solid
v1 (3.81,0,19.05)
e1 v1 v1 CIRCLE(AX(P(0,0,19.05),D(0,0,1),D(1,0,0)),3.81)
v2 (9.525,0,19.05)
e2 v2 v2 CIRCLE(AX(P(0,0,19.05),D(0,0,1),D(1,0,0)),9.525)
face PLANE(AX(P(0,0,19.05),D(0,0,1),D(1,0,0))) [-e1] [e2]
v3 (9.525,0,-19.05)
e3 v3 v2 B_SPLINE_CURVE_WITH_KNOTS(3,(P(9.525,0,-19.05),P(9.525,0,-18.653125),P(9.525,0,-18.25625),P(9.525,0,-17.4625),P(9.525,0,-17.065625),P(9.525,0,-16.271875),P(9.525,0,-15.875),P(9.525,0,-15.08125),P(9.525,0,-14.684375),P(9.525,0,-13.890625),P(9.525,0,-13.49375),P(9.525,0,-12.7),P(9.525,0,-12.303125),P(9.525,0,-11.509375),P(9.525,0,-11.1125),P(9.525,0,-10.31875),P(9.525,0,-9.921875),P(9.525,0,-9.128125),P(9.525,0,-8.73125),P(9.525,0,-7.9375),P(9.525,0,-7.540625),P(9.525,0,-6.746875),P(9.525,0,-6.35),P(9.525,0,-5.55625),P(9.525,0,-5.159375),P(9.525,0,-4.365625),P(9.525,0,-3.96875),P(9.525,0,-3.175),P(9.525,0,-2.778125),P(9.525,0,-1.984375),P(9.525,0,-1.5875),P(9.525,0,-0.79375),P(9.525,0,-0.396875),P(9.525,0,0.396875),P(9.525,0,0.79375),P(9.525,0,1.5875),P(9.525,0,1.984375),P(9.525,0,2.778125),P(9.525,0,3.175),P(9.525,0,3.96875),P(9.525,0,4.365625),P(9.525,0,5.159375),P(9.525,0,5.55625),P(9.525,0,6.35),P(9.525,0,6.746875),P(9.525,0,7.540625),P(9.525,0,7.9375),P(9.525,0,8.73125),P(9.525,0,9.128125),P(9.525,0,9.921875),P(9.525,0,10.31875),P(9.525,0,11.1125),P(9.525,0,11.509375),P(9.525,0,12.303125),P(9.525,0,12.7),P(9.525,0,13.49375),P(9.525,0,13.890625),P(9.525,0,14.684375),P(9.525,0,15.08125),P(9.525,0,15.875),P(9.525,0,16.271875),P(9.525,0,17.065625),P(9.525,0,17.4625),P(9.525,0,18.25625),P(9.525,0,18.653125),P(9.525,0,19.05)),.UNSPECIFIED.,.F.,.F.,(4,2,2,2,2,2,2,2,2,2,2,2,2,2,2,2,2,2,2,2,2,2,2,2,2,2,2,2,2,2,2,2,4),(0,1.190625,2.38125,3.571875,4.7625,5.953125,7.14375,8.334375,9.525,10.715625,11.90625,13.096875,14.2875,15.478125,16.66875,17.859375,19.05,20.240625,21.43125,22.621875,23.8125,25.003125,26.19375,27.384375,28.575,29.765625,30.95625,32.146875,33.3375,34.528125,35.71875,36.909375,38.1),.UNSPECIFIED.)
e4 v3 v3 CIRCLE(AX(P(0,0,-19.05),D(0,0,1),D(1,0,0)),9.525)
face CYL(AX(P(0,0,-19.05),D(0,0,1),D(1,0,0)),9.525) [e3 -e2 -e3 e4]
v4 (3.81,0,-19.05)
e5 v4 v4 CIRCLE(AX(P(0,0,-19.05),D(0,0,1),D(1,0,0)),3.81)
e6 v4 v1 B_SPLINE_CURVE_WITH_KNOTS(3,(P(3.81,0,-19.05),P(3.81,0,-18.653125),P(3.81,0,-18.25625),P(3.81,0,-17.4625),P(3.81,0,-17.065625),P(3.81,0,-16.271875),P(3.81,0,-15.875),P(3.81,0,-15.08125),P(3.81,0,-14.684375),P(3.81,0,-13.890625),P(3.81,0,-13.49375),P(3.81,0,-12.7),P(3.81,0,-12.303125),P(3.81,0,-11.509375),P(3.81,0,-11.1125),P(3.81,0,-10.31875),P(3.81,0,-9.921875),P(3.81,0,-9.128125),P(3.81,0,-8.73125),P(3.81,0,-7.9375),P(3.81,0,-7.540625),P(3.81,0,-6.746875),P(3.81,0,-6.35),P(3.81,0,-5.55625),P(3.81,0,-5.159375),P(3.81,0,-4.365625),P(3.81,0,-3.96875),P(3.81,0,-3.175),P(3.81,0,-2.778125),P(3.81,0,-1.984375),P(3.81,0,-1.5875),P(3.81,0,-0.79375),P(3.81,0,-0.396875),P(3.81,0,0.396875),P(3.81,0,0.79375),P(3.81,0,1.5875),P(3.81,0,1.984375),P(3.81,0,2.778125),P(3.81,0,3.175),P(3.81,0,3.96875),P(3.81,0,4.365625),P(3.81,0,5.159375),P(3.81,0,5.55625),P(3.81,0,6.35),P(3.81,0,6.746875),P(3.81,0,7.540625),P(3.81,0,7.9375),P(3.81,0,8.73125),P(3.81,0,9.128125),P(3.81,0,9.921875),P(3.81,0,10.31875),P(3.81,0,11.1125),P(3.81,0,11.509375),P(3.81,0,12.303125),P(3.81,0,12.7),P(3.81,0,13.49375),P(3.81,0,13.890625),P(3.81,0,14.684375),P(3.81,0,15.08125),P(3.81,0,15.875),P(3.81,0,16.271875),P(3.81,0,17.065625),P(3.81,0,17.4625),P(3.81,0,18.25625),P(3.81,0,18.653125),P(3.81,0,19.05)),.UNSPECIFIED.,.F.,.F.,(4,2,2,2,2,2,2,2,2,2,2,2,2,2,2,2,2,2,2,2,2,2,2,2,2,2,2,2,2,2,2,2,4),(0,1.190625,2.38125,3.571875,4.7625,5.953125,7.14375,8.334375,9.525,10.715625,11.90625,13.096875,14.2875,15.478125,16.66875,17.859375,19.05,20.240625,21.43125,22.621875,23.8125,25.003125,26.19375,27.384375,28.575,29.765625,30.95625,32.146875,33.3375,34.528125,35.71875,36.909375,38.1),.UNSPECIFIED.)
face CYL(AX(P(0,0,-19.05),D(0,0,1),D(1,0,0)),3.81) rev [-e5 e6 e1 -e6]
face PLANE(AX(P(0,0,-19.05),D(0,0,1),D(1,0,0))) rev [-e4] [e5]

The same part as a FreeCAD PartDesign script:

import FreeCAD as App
import Part
import Sketcher

V = App.Vector
Q = App.Units.Quantity

doc = App.newDocument("Part")
params = doc.addObject("Spreadsheet::Sheet", "Params")
for row, (alias, value) in enumerate([
    ("sketch1_diameter", "0.3 in"),
    ("sketch1_diameter2", "0.75 in"),
    ("pad1_length", "0.75 in"),
    ("pad1_length2", "0.75 in"),
], start=1):
    params.set(f"A{row}", alias)
    params.set(f"B{row}", "=" + value)
    params.setAlias(f"B{row}", alias)

body = doc.addObject("PartDesign::Body", "Body")

# Sketch on XY plane
sketch1 = body.newObject("Sketcher::SketchObject", "Sketch")
sketch1.AttachmentSupport = (doc.getObject("XY_Plane"), [""])
sketch1.MapMode = "FlatFace"
sketch1.addGeometry(Part.Circle(V(0, 0, 0), V(0, 0, 1), 9.5), False)
sketch1.addGeometry(Part.Circle(V(0, 0, 0), V(0, 0, 1), 3.8), False)
sketch1.addConstraint(Sketcher.Constraint("Coincident", 0, 3, -1, 1))
sketch1.addConstraint(Sketcher.Constraint("Coincident", 1, 3, -1, 1))
sketch1.addConstraint(Sketcher.Constraint("Diameter", 1, Q("0.3 in")))
sketch1.addConstraint(Sketcher.Constraint("Diameter", 0, Q("0.75 in")))
sketch1.setExpression("Constraints[2]", "Params.sketch1_diameter")
sketch1.setExpression("Constraints[3]", "Params.sketch1_diameter2")
pad1 = body.newObject("PartDesign::Pad", "Pad")
pad1.Profile = sketch1
pad1.Type = "TwoLengths"
pad1.setExpression("Length", "Params.pad1_length")
pad1.setExpression("Length2", "Params.pad1_length2")

doc.recompute()
